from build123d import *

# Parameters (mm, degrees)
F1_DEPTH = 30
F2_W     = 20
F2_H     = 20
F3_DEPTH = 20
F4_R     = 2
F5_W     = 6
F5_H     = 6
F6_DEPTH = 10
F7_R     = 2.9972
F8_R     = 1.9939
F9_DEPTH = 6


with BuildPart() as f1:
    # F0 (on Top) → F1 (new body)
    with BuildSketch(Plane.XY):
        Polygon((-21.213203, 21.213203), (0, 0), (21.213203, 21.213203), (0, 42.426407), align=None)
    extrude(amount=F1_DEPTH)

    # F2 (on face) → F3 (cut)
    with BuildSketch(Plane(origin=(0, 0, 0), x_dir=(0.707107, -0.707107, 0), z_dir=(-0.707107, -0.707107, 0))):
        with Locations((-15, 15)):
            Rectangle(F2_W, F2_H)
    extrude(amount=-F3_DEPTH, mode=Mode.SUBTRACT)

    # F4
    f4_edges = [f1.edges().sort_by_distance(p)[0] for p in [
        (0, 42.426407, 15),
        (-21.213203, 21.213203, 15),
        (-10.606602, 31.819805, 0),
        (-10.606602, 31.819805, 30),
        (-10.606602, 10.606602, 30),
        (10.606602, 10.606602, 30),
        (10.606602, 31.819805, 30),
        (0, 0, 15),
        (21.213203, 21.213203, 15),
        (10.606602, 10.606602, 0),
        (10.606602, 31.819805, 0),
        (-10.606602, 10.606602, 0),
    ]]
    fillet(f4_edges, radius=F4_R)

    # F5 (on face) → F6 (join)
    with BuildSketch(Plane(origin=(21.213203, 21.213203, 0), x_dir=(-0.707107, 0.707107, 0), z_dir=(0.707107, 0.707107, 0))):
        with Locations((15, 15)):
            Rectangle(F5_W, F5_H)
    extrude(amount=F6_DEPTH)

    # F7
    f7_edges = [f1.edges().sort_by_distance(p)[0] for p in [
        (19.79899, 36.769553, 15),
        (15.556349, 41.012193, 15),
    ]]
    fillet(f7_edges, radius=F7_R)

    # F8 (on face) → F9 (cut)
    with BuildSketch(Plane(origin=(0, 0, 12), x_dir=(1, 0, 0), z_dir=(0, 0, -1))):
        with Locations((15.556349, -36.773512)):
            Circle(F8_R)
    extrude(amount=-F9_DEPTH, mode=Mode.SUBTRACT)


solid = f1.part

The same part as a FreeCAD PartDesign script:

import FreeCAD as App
import Part
import Sketcher
Q = App.Units.Quantity


def edges_at(feature, points):
    """Names of the edges that pass closest to the given points."""
    edges = feature.Shape.Edges
    near = lambda p: min(range(len(edges)), key=lambda i: edges[i].distToShape(Part.Vertex(*p))[0])
    return sorted({f"Edge{near(p) + 1}" for p in points})


def add_polygon(sketch, points):
    """Adds a closed chain of lines whose ends are joined by coincident constraints."""
    first, n = sketch.GeometryCount, len(points)
    for a, b in zip(points, points[1:] + points[:1]):
        sketch.addGeometry(Part.LineSegment(App.Vector(*a, 0), App.Vector(*b, 0)), False)
    for i in range(n):
        sketch.addConstraint(Sketcher.Constraint("Coincident", first + i, 2, first + (i + 1) % n, 1))

doc = App.newDocument("Part")
body = doc.addObject("PartDesign::Body", "Body")

# Sketch on XY plane
sketch1 = doc.addObject("Sketcher::SketchObject", "Sketch")
body.addObject(sketch1)
sketch1.AttachmentSupport = (doc.XY_Plane, [""])
sketch1.MapMode = "FlatFace"
add_polygon(sketch1, [(-21, 21), (0, 0), (21, 21), (0, 42)])  # lines 0-3
sketch1.addConstraint([
    Sketcher.Constraint("Coincident", 0, 2, -1, 1),
    Sketcher.Constraint("Symmetric", 1, 2, 3, 2, -2),
    Sketcher.Constraint("PointOnObject", 2, 2, -2),
    Sketcher.Constraint("Perpendicular", 0, 1),
    Sketcher.Constraint("Perpendicular", 1, 2),
    Sketcher.Constraint("Distance", 0, Q("29.999999 mm")),
])
pad1 = doc.addObject("PartDesign::Pad", "Pad")
body.addObject(pad1)
pad1.Profile = sketch1
pad1.Length = 30

# Sketch on an angled plane
sketch2 = doc.addObject("Sketcher::SketchObject", "Sketch001")
body.addObject(sketch2)
sketch2.Placement = App.Placement(App.Vector(0, 0, 0), App.Rotation(App.Vector(0.707106781, -0.707106781, 0), App.Vector(0, 0, 0.999999999), App.Vector(-0.707106781, -0.707106781, 0), "ZXY"))
add_polygon(sketch2, [(-25, 25), (-25, 5), (-5, 5), (-5, 25)])  # lines 0-3
sketch2.addConstraint([
    Sketcher.Constraint("Vertical", 0),
    Sketcher.Constraint("Horizontal", 1),
    Sketcher.Constraint("Vertical", 2),
    Sketcher.Constraint("Horizontal", 3),
    Sketcher.Constraint("Equal", 3, 0),
    Sketcher.Constraint("DistanceX", 1, 1, 1, 2, Q("20 mm")),
    Sketcher.Constraint("DistanceX", 0, 2, -1, 1, Q("25 mm")),
    Sketcher.Constraint("DistanceY", -1, 1, 0, 2, Q("5 mm")),
])
pocket1 = doc.addObject("PartDesign::Pocket", "Pocket")
body.addObject(pocket1)
pocket1.Profile = sketch2
pocket1.Length = 20
doc.recompute()

fillet = doc.addObject("PartDesign::Fillet", "Fillet")
body.addObject(fillet)
fillet.Base = (pocket1, edges_at(pocket1, [
    (0, 42.426, 15),
    (-21.213, 21.213, 15),
    (-10.607, 31.82, 0),
    (-10.607, 31.82, 30),
    (-10.607, 10.607, 30),
    (10.607, 10.607, 30),
    (10.607, 31.82, 30),
    (0, 0, 15),
    (21.213, 21.213, 15),
    (10.607, 10.607, 0),
    (10.607, 31.82, 0),
    (-10.607, 10.607, 0),
]))
fillet.Radius = 2

# Sketch on an angled plane
sketch3 = doc.addObject("Sketcher::SketchObject", "Sketch002")
body.addObject(sketch3)
sketch3.Placement = App.Placement(App.Vector(21.213203, 21.213203, 0), App.Rotation(App.Vector(-0.707106781, 0.707106781, 0), App.Vector(0, 0, 0.999999999), App.Vector(0.707106781, 0.707106781, 0), "ZXY"))
add_polygon(sketch3, [(12, 18), (12, 12), (18, 12), (18, 18)])  # lines 0-3
sketch3.addConstraint([
    Sketcher.Constraint("Vertical", 0),
    Sketcher.Constraint("Horizontal", 1),
    Sketcher.Constraint("Vertical", 2),
    Sketcher.Constraint("Horizontal", 3),
    Sketcher.Constraint("Equal", 3, 0),
    Sketcher.Constraint("DistanceX", 1, 1, 1, 2, Q("6 mm")),
    Sketcher.Constraint("DistanceX", -1, 1, 0, 2, Q("12 mm")),
    Sketcher.Constraint("DistanceY", -1, 1, 0, 2, Q("12 mm")),
])
pad2 = doc.addObject("PartDesign::Pad", "Pad001")
body.addObject(pad2)
pad2.Profile = sketch3
pad2.Length = 10
doc.recompute()

fillet2 = doc.addObject("PartDesign::Fillet", "Fillet001")
body.addObject(fillet2)
fillet2.Base = (pad2, edges_at(pad2, [(19.799, 36.77, 15), (15.556, 41.012, 15)]))
fillet2.Radius = 2.9972

# Sketch on XY plane
sketch4 = doc.addObject("Sketcher::SketchObject", "Sketch003")
body.addObject(sketch4)
sketch4.AttachmentSupport = (doc.XY_Plane, [""])
sketch4.MapMode = "FlatFace"
sketch4.AttachmentOffset = App.Placement(App.Vector(0, 0, 12), App.Rotation())
sketch4.addGeometry(Part.Circle(App.Vector(15.6, 36.8, 0), App.Vector(0, 0, 1), 2), False)
sketch4.addConstraint([
    Sketcher.Constraint("Diameter", 0, Q("3.9878 mm")),
    Sketcher.Constraint("DistanceX", -1, 1, 0, 3, Q("15.556349 mm")),
    Sketcher.Constraint("DistanceY", -1, 1, 0, 3, Q("36.773512 mm")),
])
pocket2 = doc.addObject("PartDesign::Pocket", "Pocket001")
body.addObject(pocket2)
pocket2.Profile = sketch4
pocket2.Length = 6
pocket2.Reversed = True

doc.recompute()
